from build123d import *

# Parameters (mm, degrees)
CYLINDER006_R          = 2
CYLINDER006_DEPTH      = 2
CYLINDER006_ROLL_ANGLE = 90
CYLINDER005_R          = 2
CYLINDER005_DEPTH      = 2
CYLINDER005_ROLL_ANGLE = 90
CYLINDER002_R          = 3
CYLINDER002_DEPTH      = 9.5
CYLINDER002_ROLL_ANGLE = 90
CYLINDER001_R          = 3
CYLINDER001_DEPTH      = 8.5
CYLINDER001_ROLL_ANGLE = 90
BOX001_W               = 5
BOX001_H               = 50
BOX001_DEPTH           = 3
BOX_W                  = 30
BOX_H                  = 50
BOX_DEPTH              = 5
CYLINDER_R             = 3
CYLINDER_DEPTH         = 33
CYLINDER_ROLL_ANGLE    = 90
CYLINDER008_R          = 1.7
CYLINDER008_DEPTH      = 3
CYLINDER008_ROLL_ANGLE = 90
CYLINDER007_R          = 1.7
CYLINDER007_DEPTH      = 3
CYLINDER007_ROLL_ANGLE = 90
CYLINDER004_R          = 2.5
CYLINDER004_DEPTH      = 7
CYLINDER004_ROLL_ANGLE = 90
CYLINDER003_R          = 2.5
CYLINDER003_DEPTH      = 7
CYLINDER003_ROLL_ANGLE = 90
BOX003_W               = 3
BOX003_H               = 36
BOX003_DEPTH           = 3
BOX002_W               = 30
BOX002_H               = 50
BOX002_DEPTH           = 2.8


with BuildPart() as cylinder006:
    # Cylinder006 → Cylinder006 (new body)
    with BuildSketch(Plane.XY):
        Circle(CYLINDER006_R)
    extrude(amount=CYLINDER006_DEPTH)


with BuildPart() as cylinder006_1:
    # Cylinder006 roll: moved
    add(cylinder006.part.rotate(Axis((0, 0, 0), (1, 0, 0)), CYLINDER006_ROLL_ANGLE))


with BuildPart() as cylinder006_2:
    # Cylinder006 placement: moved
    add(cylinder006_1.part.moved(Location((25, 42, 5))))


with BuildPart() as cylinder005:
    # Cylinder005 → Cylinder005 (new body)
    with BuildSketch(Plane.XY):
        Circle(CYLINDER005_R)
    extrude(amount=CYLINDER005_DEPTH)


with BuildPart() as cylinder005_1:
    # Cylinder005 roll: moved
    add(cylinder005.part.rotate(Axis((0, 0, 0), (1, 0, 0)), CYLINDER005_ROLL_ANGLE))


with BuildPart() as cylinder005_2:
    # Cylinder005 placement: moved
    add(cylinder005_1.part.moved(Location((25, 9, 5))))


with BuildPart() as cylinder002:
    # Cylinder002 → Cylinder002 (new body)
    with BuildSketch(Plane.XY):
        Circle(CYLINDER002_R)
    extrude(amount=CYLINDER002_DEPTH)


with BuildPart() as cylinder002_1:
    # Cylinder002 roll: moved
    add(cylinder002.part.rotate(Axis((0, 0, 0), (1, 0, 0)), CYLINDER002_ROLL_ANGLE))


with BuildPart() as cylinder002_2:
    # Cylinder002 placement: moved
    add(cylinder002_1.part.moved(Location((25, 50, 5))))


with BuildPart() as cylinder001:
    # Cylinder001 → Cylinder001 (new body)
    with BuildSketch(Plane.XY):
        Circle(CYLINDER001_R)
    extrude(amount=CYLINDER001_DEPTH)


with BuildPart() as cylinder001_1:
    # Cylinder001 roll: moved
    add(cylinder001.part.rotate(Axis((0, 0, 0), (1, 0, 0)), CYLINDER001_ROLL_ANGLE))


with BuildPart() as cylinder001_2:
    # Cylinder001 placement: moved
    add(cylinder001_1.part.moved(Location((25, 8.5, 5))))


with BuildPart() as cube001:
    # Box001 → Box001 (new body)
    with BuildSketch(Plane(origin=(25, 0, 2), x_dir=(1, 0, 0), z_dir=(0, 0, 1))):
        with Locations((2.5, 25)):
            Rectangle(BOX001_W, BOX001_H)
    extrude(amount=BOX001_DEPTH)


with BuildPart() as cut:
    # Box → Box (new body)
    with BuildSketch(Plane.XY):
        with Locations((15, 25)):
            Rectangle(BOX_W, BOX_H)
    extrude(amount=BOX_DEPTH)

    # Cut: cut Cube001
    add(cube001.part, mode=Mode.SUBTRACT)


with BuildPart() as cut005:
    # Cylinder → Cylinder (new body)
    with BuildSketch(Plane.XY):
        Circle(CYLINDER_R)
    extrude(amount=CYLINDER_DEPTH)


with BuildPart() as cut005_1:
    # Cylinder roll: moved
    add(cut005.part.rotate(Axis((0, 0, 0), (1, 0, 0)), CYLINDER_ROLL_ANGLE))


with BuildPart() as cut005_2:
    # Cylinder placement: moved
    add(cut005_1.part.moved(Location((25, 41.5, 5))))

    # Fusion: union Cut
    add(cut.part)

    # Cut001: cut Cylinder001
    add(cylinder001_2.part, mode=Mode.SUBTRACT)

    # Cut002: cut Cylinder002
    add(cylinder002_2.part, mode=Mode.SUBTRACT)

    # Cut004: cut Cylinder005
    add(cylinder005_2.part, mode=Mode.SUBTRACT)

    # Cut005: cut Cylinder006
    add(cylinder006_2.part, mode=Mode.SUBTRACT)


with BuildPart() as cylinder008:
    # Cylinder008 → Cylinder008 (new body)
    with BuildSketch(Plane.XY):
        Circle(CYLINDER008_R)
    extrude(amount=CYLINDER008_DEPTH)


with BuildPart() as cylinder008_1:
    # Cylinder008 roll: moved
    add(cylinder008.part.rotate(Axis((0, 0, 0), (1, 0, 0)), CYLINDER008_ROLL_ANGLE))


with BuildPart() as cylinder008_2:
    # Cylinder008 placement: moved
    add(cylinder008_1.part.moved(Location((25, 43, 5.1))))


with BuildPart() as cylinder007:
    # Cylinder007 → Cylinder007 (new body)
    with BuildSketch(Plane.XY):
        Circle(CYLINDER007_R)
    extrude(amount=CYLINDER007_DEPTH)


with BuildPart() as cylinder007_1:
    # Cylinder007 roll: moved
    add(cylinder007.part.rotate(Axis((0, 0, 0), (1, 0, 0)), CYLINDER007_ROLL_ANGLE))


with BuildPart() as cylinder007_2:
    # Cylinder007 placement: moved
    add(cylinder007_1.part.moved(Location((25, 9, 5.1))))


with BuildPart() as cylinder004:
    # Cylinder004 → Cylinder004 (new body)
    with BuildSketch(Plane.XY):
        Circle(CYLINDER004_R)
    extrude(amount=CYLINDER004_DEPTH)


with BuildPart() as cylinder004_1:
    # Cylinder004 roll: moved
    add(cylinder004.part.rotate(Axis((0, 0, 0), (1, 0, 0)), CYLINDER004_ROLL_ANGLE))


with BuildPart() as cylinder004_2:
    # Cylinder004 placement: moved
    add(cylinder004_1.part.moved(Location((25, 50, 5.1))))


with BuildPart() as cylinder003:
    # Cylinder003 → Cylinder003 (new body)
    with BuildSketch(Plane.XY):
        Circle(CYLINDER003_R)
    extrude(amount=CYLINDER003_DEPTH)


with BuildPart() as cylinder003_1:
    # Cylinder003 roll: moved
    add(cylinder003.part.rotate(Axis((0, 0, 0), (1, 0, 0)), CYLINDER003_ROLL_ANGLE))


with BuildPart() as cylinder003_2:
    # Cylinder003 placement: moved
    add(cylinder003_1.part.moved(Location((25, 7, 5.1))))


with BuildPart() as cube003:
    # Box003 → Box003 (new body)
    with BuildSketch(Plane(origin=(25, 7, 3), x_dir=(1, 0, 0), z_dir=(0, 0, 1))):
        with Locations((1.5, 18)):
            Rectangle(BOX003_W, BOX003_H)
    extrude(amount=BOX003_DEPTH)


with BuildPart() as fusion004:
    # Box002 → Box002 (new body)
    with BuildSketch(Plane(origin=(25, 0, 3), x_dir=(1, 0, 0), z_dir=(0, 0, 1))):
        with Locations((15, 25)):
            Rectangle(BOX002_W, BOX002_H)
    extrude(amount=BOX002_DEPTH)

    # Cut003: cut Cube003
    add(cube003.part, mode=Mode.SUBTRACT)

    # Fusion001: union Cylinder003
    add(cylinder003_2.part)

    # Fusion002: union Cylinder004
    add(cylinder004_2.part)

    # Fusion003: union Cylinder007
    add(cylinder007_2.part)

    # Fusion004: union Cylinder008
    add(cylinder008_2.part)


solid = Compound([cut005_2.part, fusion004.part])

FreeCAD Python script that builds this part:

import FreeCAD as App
import Part
import Sketcher

V = App.Vector
Q = App.Units.Quantity

doc = App.newDocument("Part")
body = doc.addObject("PartDesign::Body", "Body")

# Sketch on XY plane
sketch1 = body.newObject("Sketcher::SketchObject", "Sketch")
sketch1.AttachmentSupport = (doc.getObject("XY_Plane"), [""])
sketch1.MapMode = "FlatFace"
sketch1.addGeometry(Part.Circle(V(0, 0, 0), V(0, 0, 1), 2), False)
sketch1.addConstraint([
    Sketcher.Constraint("Coincident", 0, 3, -1, 1),
    Sketcher.Constraint("Diameter", 0, Q("4 mm")),
])
pad1 = body.newObject("PartDesign::Pad", "Pad")
pad1.Profile = sketch1
pad1.Length = 2
body2 = doc.addObject("PartDesign::Body", "Body001")
doc.recompute()

body.Placement = App.Placement(V(0, 0, 0), App.Rotation(V(1, 0, 0), 90))
boolean = body2.newObject("PartDesign::Boolean", "Boolean")
boolean.Type = "Fuse"
boolean.addObjects([body])
body3 = doc.addObject("PartDesign::Body", "Body002")
doc.recompute()

body2.Placement = App.Placement(V(25, 42, 5), App.Rotation(V(0, 0, 1), 0))
boolean2 = body3.newObject("PartDesign::Boolean", "Boolean001")
boolean2.Type = "Fuse"
boolean2.addObjects([body2])
body4 = doc.addObject("PartDesign::Body", "Body003")

# Sketch on XY plane
sketch2 = body4.newObject("Sketcher::SketchObject", "Sketch001")
sketch2.AttachmentSupport = (doc.getObject("XY_Plane003"), [""])
sketch2.MapMode = "FlatFace"
sketch2.addGeometry(Part.Circle(V(0, 0, 0), V(0, 0, 1), 2), False)
sketch2.addConstraint([
    Sketcher.Constraint("Coincident", 0, 3, -1, 1),
    Sketcher.Constraint("Diameter", 0, Q("4 mm")),
])
pad2 = body4.newObject("PartDesign::Pad", "Pad001")
pad2.Profile = sketch2
pad2.Length = 2
body5 = doc.addObject("PartDesign::Body", "Body004")
doc.recompute()

body4.Placement = App.Placement(V(0, 0, 0), App.Rotation(V(1, 0, 0), 90))
boolean3 = body5.newObject("PartDesign::Boolean", "Boolean002")
boolean3.Type = "Fuse"
boolean3.addObjects([body4])
body6 = doc.addObject("PartDesign::Body", "Body005")
doc.recompute()

body5.Placement = App.Placement(V(25, 9, 5), App.Rotation(V(0, 0, 1), 0))
boolean4 = body6.newObject("PartDesign::Boolean", "Boolean003")
boolean4.Type = "Fuse"
boolean4.addObjects([body5])
body7 = doc.addObject("PartDesign::Body", "Body006")

# Sketch on XY plane
sketch3 = body7.newObject("Sketcher::SketchObject", "Sketch002")
sketch3.AttachmentSupport = (doc.getObject("XY_Plane006"), [""])
sketch3.MapMode = "FlatFace"
sketch3.addGeometry(Part.Circle(V(0, 0, 0), V(0, 0, 1), 3), False)
sketch3.addConstraint([
    Sketcher.Constraint("Coincident", 0, 3, -1, 1),
    Sketcher.Constraint("Diameter", 0, Q("6 mm")),
])
pad3 = body7.newObject("PartDesign::Pad", "Pad002")
pad3.Profile = sketch3
pad3.Length = 9.5
body8 = doc.addObject("PartDesign::Body", "Body007")
doc.recompute()

body7.Placement = App.Placement(V(0, 0, 0), App.Rotation(V(1, 0, 0), 90))
boolean5 = body8.newObject("PartDesign::Boolean", "Boolean004")
boolean5.Type = "Fuse"
boolean5.addObjects([body7])
body9 = doc.addObject("PartDesign::Body", "Body008")
doc.recompute()

body8.Placement = App.Placement(V(25, 50, 5), App.Rotation(V(0, 0, 1), 0))
boolean6 = body9.newObject("PartDesign::Boolean", "Boolean005")
boolean6.Type = "Fuse"
boolean6.addObjects([body8])
body10 = doc.addObject("PartDesign::Body", "Body009")

# Sketch on XY plane
sketch4 = body10.newObject("Sketcher::SketchObject", "Sketch003")
sketch4.AttachmentSupport = (doc.getObject("XY_Plane009"), [""])
sketch4.MapMode = "FlatFace"
sketch4.addGeometry(Part.Circle(V(0, 0, 0), V(0, 0, 1), 3), False)
sketch4.addConstraint([
    Sketcher.Constraint("Coincident", 0, 3, -1, 1),
    Sketcher.Constraint("Diameter", 0, Q("6 mm")),
])
pad4 = body10.newObject("PartDesign::Pad", "Pad003")
pad4.Profile = sketch4
pad4.Length = 8.5
body11 = doc.addObject("PartDesign::Body", "Body010")
doc.recompute()

body10.Placement = App.Placement(V(0, 0, 0), App.Rotation(V(1, 0, 0), 90))
boolean7 = body11.newObject("PartDesign::Boolean", "Boolean006")
boolean7.Type = "Fuse"
boolean7.addObjects([body10])
body12 = doc.addObject("PartDesign::Body", "Body011")
doc.recompute()

body11.Placement = App.Placement(V(25, 8.5, 5), App.Rotation(V(0, 0, 1), 0))
boolean8 = body12.newObject("PartDesign::Boolean", "Boolean007")
boolean8.Type = "Fuse"
boolean8.addObjects([body11])
body13 = doc.addObject("PartDesign::Body", "Body012")

# Sketch on XY plane
sketch5 = body13.newObject("Sketcher::SketchObject", "Sketch004")
sketch5.AttachmentSupport = (doc.getObject("XY_Plane012"), [""])
sketch5.MapMode = "FlatFace"
sketch5.AttachmentOffset = App.Placement(V(0, 0, 2), App.Rotation())
sketch5.addGeometry([
    Part.LineSegment(V(25, 50, 0), V(25, 0, 0)),
    Part.LineSegment(V(25, 0, 0), V(30, 0, 0)),
    Part.LineSegment(V(30, 0, 0), V(30, 50, 0)),
    Part.LineSegment(V(30, 50, 0), V(25, 50, 0)),
], False)
sketch5.addConstraint([
    Sketcher.Constraint("Coincident", 0, 2, 1, 1),
    Sketcher.Constraint("Coincident", 1, 2, 2, 1),
    Sketcher.Constraint("Coincident", 2, 2, 3, 1),
    Sketcher.Constraint("Coincident", 3, 2, 0, 1),
    Sketcher.Constraint("Vertical", 0),
    Sketcher.Constraint("Horizontal", 1),
    Sketcher.Constraint("Vertical", 2),
    Sketcher.Constraint("Horizontal", 3),
    Sketcher.Constraint("PointOnObject", 0, 2, -1),
    Sketcher.Constraint("DistanceX", 1, 1, 1, 2, Q("5 mm")),
    Sketcher.Constraint("DistanceY", 0, 2, 0, 1, Q("50 mm")),
    Sketcher.Constraint("DistanceX", -1, 1, 0, 2, Q("25 mm")),
])
pad5 = body13.newObject("PartDesign::Pad", "Pad004")
pad5.Profile = sketch5
pad5.Length = 3
body14 = doc.addObject("PartDesign::Body", "Body013")

# Sketch on XY plane
sketch6 = body14.newObject("Sketcher::SketchObject", "Sketch005")
sketch6.AttachmentSupport = (doc.getObject("XY_Plane013"), [""])
sketch6.MapMode = "FlatFace"
sketch6.addGeometry([
    Part.LineSegment(V(0, 50, 0), V(0, 0, 0)),
    Part.LineSegment(V(0, 0, 0), V(30, 0, 0)),
    Part.LineSegment(V(30, 0, 0), V(30, 50, 0)),
    Part.LineSegment(V(30, 50, 0), V(0, 50, 0)),
], False)
sketch6.addConstraint([
    Sketcher.Constraint("Coincident", 0, 2, 1, 1),
    Sketcher.Constraint("Coincident", 1, 2, 2, 1),
    Sketcher.Constraint("Coincident", 2, 2, 3, 1),
    Sketcher.Constraint("Coincident", 3, 2, 0, 1),
    Sketcher.Constraint("Vertical", 0),
    Sketcher.Constraint("Horizontal", 1),
    Sketcher.Constraint("Vertical", 2),
    Sketcher.Constraint("Horizontal", 3),
    Sketcher.Constraint("Coincident", 0, 2, -1, 1),
    Sketcher.Constraint("DistanceX", 1, 1, 1, 2, Q("30 mm")),
    Sketcher.Constraint("DistanceY", 0, 2, 0, 1, Q("50 mm")),
])
pad6 = body14.newObject("PartDesign::Pad", "Pad005")
pad6.Profile = sketch6
pad6.Length = 5
doc.recompute()

boolean9 = body14.newObject("PartDesign::Boolean", "Boolean008")
boolean9.Type = "Cut"
boolean9.addObjects([body13])
body15 = doc.addObject("PartDesign::Body", "Body014")

# Sketch on XY plane
sketch7 = body15.newObject("Sketcher::SketchObject", "Sketch006")
sketch7.AttachmentSupport = (doc.getObject("XY_Plane014"), [""])
sketch7.MapMode = "FlatFace"
sketch7.addGeometry(Part.Circle(V(0, 0, 0), V(0, 0, 1), 3), False)
sketch7.addConstraint([
    Sketcher.Constraint("Coincident", 0, 3, -1, 1),
    Sketcher.Constraint("Diameter", 0, Q("6 mm")),
])
pad7 = body15.newObject("PartDesign::Pad", "Pad006")
pad7.Profile = sketch7
pad7.Length = 33
body16 = doc.addObject("PartDesign::Body", "Body015")
doc.recompute()

body15.Placement = App.Placement(V(0, 0, 0), App.Rotation(V(1, 0, 0), 90))
boolean10 = body16.newObject("PartDesign::Boolean", "Boolean009")
boolean10.Type = "Fuse"
boolean10.addObjects([body15])
body17 = doc.addObject("PartDesign::Body", "Body016")
doc.recompute()

body16.Placement = App.Placement(V(25, 41.5, 5), App.Rotation(V(0, 0, 1), 0))
boolean11 = body17.newObject("PartDesign::Boolean", "Boolean010")
boolean11.Type = "Fuse"
boolean11.addObjects([body16])
doc.recompute()

boolean12 = body17.newObject("PartDesign::Boolean", "Boolean011")
boolean12.Type = "Fuse"
boolean12.addObjects([body14])
doc.recompute()

boolean13 = body17.newObject("PartDesign::Boolean", "Boolean012")
boolean13.Type = "Cut"
boolean13.addObjects([body12])
doc.recompute()

boolean14 = body17.newObject("PartDesign::Boolean", "Boolean013")
boolean14.Type = "Cut"
boolean14.addObjects([body9])
doc.recompute()

boolean15 = body17.newObject("PartDesign::Boolean", "Boolean014")
boolean15.Type = "Cut"
boolean15.addObjects([body6])
doc.recompute()

boolean16 = body17.newObject("PartDesign::Boolean", "Boolean015")
boolean16.Type = "Cut"
boolean16.addObjects([body3])
body18 = doc.addObject("PartDesign::Body", "Body017")

# Sketch on XY plane
sketch8 = body18.newObject("Sketcher::SketchObject", "Sketch007")
sketch8.AttachmentSupport = (doc.getObject("XY_Plane017"), [""])
sketch8.MapMode = "FlatFace"
sketch8.addGeometry(Part.Circle(V(0, 0, 0), V(0, 0, 1), 1.7), False)
sketch8.addConstraint([
    Sketcher.Constraint("Coincident", 0, 3, -1, 1),
    Sketcher.Constraint("Diameter", 0, Q("3.4 mm")),
])
pad8 = body18.newObject("PartDesign::Pad", "Pad007")
pad8.Profile = sketch8
pad8.Length = 3
body19 = doc.addObject("PartDesign::Body", "Body018")
doc.recompute()

body18.Placement = App.Placement(V(0, 0, 0), App.Rotation(V(1, 0, 0), 90))
boolean17 = body19.newObject("PartDesign::Boolean", "Boolean016")
boolean17.Type = "Fuse"
boolean17.addObjects([body18])
body20 = doc.addObject("PartDesign::Body", "Body019")
doc.recompute()

body19.Placement = App.Placement(V(25, 43, 5.1), App.Rotation(V(0, 0, 1), 0))
boolean18 = body20.newObject("PartDesign::Boolean", "Boolean017")
boolean18.Type = "Fuse"
boolean18.addObjects([body19])
body21 = doc.addObject("PartDesign::Body", "Body020")

# Sketch on XY plane
sketch9 = body21.newObject("Sketcher::SketchObject", "Sketch008")
sketch9.AttachmentSupport = (doc.getObject("XY_Plane020"), [""])
sketch9.MapMode = "FlatFace"
sketch9.addGeometry(Part.Circle(V(0, 0, 0), V(0, 0, 1), 1.7), False)
sketch9.addConstraint([
    Sketcher.Constraint("Coincident", 0, 3, -1, 1),
    Sketcher.Constraint("Diameter", 0, Q("3.4 mm")),
])
pad9 = body21.newObject("PartDesign::Pad", "Pad008")
pad9.Profile = sketch9
pad9.Length = 3
body22 = doc.addObject("PartDesign::Body", "Body021")
doc.recompute()

body21.Placement = App.Placement(V(0, 0, 0), App.Rotation(V(1, 0, 0), 90))
boolean19 = body22.newObject("PartDesign::Boolean", "Boolean018")
boolean19.Type = "Fuse"
boolean19.addObjects([body21])
body23 = doc.addObject("PartDesign::Body", "Body022")
doc.recompute()

body22.Placement = App.Placement(V(25, 9, 5.1), App.Rotation(V(0, 0, 1), 0))
boolean20 = body23.newObject("PartDesign::Boolean", "Boolean019")
boolean20.Type = "Fuse"
boolean20.addObjects([body22])
body24 = doc.addObject("PartDesign::Body", "Body023")

# Sketch on XY plane
sketch10 = body24.newObject("Sketcher::SketchObject", "Sketch009")
sketch10.AttachmentSupport = (doc.getObject("XY_Plane023"), [""])
sketch10.MapMode = "FlatFace"
sketch10.addGeometry(Part.Circle(V(0, 0, 0), V(0, 0, 1), 2.5), False)
sketch10.addConstraint([
    Sketcher.Constraint("Coincident", 0, 3, -1, 1),
    Sketcher.Constraint("Diameter", 0, Q("5 mm")),
])
pad10 = body24.newObject("PartDesign::Pad", "Pad009")
pad10.Profile = sketch10
pad10.Length = 7
body25 = doc.addObject("PartDesign::Body", "Body024")
doc.recompute()

body24.Placement = App.Placement(V(0, 0, 0), App.Rotation(V(1, 0, 0), 90))
boolean21 = body25.newObject("PartDesign::Boolean", "Boolean020")
boolean21.Type = "Fuse"
boolean21.addObjects([body24])
body26 = doc.addObject("PartDesign::Body", "Body025")
doc.recompute()

body25.Placement = App.Placement(V(25, 50, 5.1), App.Rotation(V(0, 0, 1), 0))
boolean22 = body26.newObject("PartDesign::Boolean", "Boolean021")
boolean22.Type = "Fuse"
boolean22.addObjects([body25])
body27 = doc.addObject("PartDesign::Body", "Body026")

# Sketch on XY plane
sketch11 = body27.newObject("Sketcher::SketchObject", "Sketch010")
sketch11.AttachmentSupport = (doc.getObject("XY_Plane026"), [""])
sketch11.MapMode = "FlatFace"
sketch11.addGeometry(Part.Circle(V(0, 0, 0), V(0, 0, 1), 2.5), False)
sketch11.addConstraint([
    Sketcher.Constraint("Coincident", 0, 3, -1, 1),
    Sketcher.Constraint("Diameter", 0, Q("5 mm")),
])
pad11 = body27.newObject("PartDesign::Pad", "Pad010")
pad11.Profile = sketch11
pad11.Length = 7
body28 = doc.addObject("PartDesign::Body", "Body027")
doc.recompute()

body27.Placement = App.Placement(V(0, 0, 0), App.Rotation(V(1, 0, 0), 90))
boolean23 = body28.newObject("PartDesign::Boolean", "Boolean022")
boolean23.Type = "Fuse"
boolean23.addObjects([body27])
body29 = doc.addObject("PartDesign::Body", "Body028")
doc.recompute()

body28.Placement = App.Placement(V(25, 7, 5.1), App.Rotation(V(0, 0, 1), 0))
boolean24 = body29.newObject("PartDesign::Boolean", "Boolean023")
boolean24.Type = "Fuse"
boolean24.addObjects([body28])
body30 = doc.addObject("PartDesign::Body", "Body029")

# Sketch on XY plane
sketch12 = body30.newObject("Sketcher::SketchObject", "Sketch011")
sketch12.AttachmentSupport = (doc.getObject("XY_Plane029"), [""])
sketch12.MapMode = "FlatFace"
sketch12.AttachmentOffset = App.Placement(V(0, 0, 3), App.Rotation())
sketch12.addGeometry([
    Part.LineSegment(V(25, 43, 0), V(25, 7, 0)),
    Part.LineSegment(V(25, 7, 0), V(28, 7, 0)),
    Part.LineSegment(V(28, 7, 0), V(28, 43, 0)),
    Part.LineSegment(V(28, 43, 0), V(25, 43, 0)),
], False)
sketch12.addConstraint([
    Sketcher.Constraint("Coincident", 0, 2, 1, 1),
    Sketcher.Constraint("Coincident", 1, 2, 2, 1),
    Sketcher.Constraint("Coincident", 2, 2, 3, 1),
    Sketcher.Constraint("Coincident", 3, 2, 0, 1),
    Sketcher.Constraint("Vertical", 0),
    Sketcher.Constraint("Horizontal", 1),
    Sketcher.Constraint("Vertical", 2),
    Sketcher.Constraint("Horizontal", 3),
    Sketcher.Constraint("DistanceX", 1, 1, 1, 2, Q("3 mm")),
    Sketcher.Constraint("DistanceY", 0, 2, 0, 1, Q("36 mm")),
    Sketcher.Constraint("DistanceX", -1, 1, 0, 2, Q("25 mm")),
    Sketcher.Constraint("DistanceY", -1, 1, 0, 2, Q("7 mm")),
])
pad12 = body30.newObject("PartDesign::Pad", "Pad011")
pad12.Profile = sketch12
pad12.Length = 3
body31 = doc.addObject("PartDesign::Body", "Body030")

# Sketch on XY plane
sketch13 = body31.newObject("Sketcher::SketchObject", "Sketch012")
sketch13.AttachmentSupport = (doc.getObject("XY_Plane030"), [""])
sketch13.MapMode = "FlatFace"
sketch13.AttachmentOffset = App.Placement(V(0, 0, 3), App.Rotation())
sketch13.addGeometry([
    Part.LineSegment(V(25, 50, 0), V(25, 0, 0)),
    Part.LineSegment(V(25, 0, 0), V(55, 0, 0)),
    Part.LineSegment(V(55, 0, 0), V(55, 50, 0)),
    Part.LineSegment(V(55, 50, 0), V(25, 50, 0)),
], False)
sketch13.addConstraint([
    Sketcher.Constraint("Coincident", 0, 2, 1, 1),
    Sketcher.Constraint("Coincident", 1, 2, 2, 1),
    Sketcher.Constraint("Coincident", 2, 2, 3, 1),
    Sketcher.Constraint("Coincident", 3, 2, 0, 1),
    Sketcher.Constraint("Vertical", 0),
    Sketcher.Constraint("Horizontal", 1),
    Sketcher.Constraint("Vertical", 2),
    Sketcher.Constraint("Horizontal", 3),
    Sketcher.Constraint("PointOnObject", 0, 2, -1),
    Sketcher.Constraint("DistanceX", 1, 1, 1, 2, Q("30 mm")),
    Sketcher.Constraint("DistanceY", 0, 2, 0, 1, Q("50 mm")),
    Sketcher.Constraint("DistanceX", -1, 1, 0, 2, Q("25 mm")),
])
pad13 = body31.newObject("PartDesign::Pad", "Pad012")
pad13.Profile = sketch13
pad13.Length = 2.8
doc.recompute()

boolean25 = body31.newObject("PartDesign::Boolean", "Boolean024")
boolean25.Type = "Cut"
boolean25.addObjects([body30])
doc.recompute()

boolean26 = body31.newObject("PartDesign::Boolean", "Boolean025")
boolean26.Type = "Fuse"
boolean26.addObjects([body29])
doc.recompute()

boolean27 = body31.newObject("PartDesign::Boolean", "Boolean026")
boolean27.Type = "Fuse"
boolean27.addObjects([body26])
doc.recompute()

boolean28 = body31.newObject("PartDesign::Boolean", "Boolean027")
boolean28.Type = "Fuse"
boolean28.addObjects([body23])
doc.recompute()

boolean29 = body31.newObject("PartDesign::Boolean", "Boolean028")
boolean29.Type = "Fuse"
boolean29.addObjects([body20])

doc.recompute()
